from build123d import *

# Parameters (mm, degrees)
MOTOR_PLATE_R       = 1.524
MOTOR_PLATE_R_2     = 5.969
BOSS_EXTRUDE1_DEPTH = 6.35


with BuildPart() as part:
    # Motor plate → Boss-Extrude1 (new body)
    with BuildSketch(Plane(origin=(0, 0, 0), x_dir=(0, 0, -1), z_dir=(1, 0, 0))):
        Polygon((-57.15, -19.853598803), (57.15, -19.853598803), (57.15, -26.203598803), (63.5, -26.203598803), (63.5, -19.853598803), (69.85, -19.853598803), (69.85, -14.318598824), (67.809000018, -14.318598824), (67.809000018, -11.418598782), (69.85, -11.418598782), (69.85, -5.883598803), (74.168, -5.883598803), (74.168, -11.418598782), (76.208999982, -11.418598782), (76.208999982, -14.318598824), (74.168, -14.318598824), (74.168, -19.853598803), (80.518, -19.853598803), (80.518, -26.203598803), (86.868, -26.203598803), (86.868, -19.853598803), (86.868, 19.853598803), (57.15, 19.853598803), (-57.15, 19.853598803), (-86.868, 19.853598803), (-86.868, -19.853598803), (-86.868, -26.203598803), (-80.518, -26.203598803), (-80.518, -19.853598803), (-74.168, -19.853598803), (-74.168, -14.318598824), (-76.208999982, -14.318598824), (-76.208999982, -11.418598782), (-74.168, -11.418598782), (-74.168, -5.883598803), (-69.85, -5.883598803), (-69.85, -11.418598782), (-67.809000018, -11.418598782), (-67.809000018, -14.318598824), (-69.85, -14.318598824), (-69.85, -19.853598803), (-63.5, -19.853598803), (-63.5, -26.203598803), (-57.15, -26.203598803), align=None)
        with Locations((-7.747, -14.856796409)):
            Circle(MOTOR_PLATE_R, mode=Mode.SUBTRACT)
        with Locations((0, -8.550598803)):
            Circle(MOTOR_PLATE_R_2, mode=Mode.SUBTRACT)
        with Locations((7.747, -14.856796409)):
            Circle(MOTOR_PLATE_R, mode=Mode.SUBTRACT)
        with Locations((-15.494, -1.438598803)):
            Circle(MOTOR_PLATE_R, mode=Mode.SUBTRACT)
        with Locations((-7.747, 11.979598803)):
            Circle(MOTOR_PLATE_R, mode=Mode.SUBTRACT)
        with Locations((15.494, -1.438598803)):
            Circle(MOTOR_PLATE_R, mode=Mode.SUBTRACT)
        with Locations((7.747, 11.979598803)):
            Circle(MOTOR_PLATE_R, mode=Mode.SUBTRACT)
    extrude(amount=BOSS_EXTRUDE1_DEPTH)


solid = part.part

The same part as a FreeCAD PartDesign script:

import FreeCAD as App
import Part
import Sketcher
Q = App.Units.Quantity


def add_polygon(sketch, points):
    """Adds a closed chain of lines whose ends are joined by coincident constraints."""
    first, n = sketch.GeometryCount, len(points)
    for a, b in zip(points, points[1:] + points[:1]):
        sketch.addGeometry(Part.LineSegment(App.Vector(*a, 0), App.Vector(*b, 0)), False)
    for i in range(n):
        sketch.addConstraint(Sketcher.Constraint("Coincident", first + i, 2, first + (i + 1) % n, 1))

doc = App.newDocument("Part")
params = doc.addObject("Spreadsheet::Sheet", "Params")
for row, (alias, value) in enumerate([
    ("sketch1_diameter", "0.12 in"),
    ("sketch1_diameter2", "0.47 in"),
    ("sketch1_height", "4.5 in"),
    ("sketch1_width", "0.25 in"),
    ("sketch1_height2", "0.17 in"),
    ("pad1_length", "0.25 in"),
], start=1):
    params.set(f"A{row}", alias)
    params.set(f"B{row}", "=" + value)
    params.setAlias(f"B{row}", alias)

body = doc.addObject("PartDesign::Body", "Body")

# Sketch on YZ plane
sketch1 = body.newObject("Sketcher::SketchObject", "Sketch")
sketch1.AttachmentSupport = (doc.getObject("YZ_Plane"), [""])
sketch1.MapMode = "FlatFace"
add_polygon(sketch1, [(-19.9, 57.1), (-19.9, -57.1), (-26.2, -57.1), (-26.2, -63.5), (-19.9, -63.5), (-19.9, -69.8), (-14.3, -69.8), (-14.3, -67.8), (-11.4, -67.8), (-11.4, -69.8), (-5.9, -69.8), (-5.9, -74.2), (-11.4, -74.2), (-11.4, -76.2), (-14.3, -76.2), (-14.3, -74.2), (-19.9, -74.2), (-19.9, -80.5), (-26.2, -80.5), (-26.2, -86.9), (19.9, -86.9), (19.9, 86.9), (-26.2, 86.9), (-26.2, 80.5), (-19.9, 80.5), (-19.9, 74.2), (-14.3, 74.2), (-14.3, 76.2), (-11.4, 76.2), (-11.4, 74.2), (-5.9, 74.2), (-5.9, 69.8), (-11.4, 69.8), (-11.4, 67.8), (-14.3, 67.8), (-14.3, 69.8), (-19.9, 69.8), (-19.9, 63.5), (-26.2, 63.5), (-26.2, 57.1)])  # lines 0-39
sketch1.addGeometry(Part.Circle(App.Vector(-14.9, 7.7, 0), App.Vector(0, 0, 1), 1.5), False)  # 40
sketch1.addGeometry(Part.Circle(App.Vector(-1.4, 15.5, 0), App.Vector(0, 0, 1), 1.5), False)  # 41
sketch1.addGeometry(Part.Circle(App.Vector(-14.9, -7.7, 0), App.Vector(0, 0, 1), 1.5), False)  # 42
sketch1.addGeometry(Part.Circle(App.Vector(-8.6, 0, 0), App.Vector(0, 0, 1), 6), False)  # 43
sketch1.addGeometry(Part.Circle(App.Vector(-1.4, -15.5, 0), App.Vector(0, 0, 1), 1.5), False)  # 44
sketch1.addGeometry(Part.Circle(App.Vector(12, 7.7, 0), App.Vector(0, 0, 1), 1.5), False)  # 45
sketch1.addGeometry(Part.Circle(App.Vector(12, -7.7, 0), App.Vector(0, 0, 1), 1.5), False)  # 46
sketch1.addConstraint(Sketcher.Constraint("Vertical", 0))
sketch1.addConstraint(Sketcher.Constraint("Horizontal", 1))
sketch1.addConstraint(Sketcher.Constraint("Vertical", 2))
sketch1.addConstraint(Sketcher.Constraint("Horizontal", 3))
sketch1.addConstraint(Sketcher.Constraint("Vertical", 4))
sketch1.addConstraint(Sketcher.Constraint("Horizontal", 5))
sketch1.addConstraint(Sketcher.Constraint("Vertical", 6))
sketch1.addConstraint(Sketcher.Constraint("Horizontal", 7))
sketch1.addConstraint(Sketcher.Constraint("Vertical", 8))
sketch1.addConstraint(Sketcher.Constraint("Horizontal", 9))
sketch1.addConstraint(Sketcher.Constraint("Vertical", 10))
sketch1.addConstraint(Sketcher.Constraint("Horizontal", 11))
sketch1.addConstraint(Sketcher.Constraint("Vertical", 12))
sketch1.addConstraint(Sketcher.Constraint("Horizontal", 13))
sketch1.addConstraint(Sketcher.Constraint("Vertical", 14))
sketch1.addConstraint(Sketcher.Constraint("Horizontal", 15))
sketch1.addConstraint(Sketcher.Constraint("Vertical", 16))
sketch1.addConstraint(Sketcher.Constraint("Horizontal", 17))
sketch1.addConstraint(Sketcher.Constraint("Vertical", 18))
sketch1.addConstraint(Sketcher.Constraint("Horizontal", 19))
sketch1.addConstraint(Sketcher.Constraint("Vertical", 20))
sketch1.addConstraint(Sketcher.Constraint("Horizontal", 21))
sketch1.addConstraint(Sketcher.Constraint("Vertical", 22))
sketch1.addConstraint(Sketcher.Constraint("Horizontal", 23))
sketch1.addConstraint(Sketcher.Constraint("Vertical", 24))
sketch1.addConstraint(Sketcher.Constraint("Horizontal", 25))
sketch1.addConstraint(Sketcher.Constraint("Vertical", 26))
sketch1.addConstraint(Sketcher.Constraint("Horizontal", 27))
sketch1.addConstraint(Sketcher.Constraint("Vertical", 28))
sketch1.addConstraint(Sketcher.Constraint("Horizontal", 29))
sketch1.addConstraint(Sketcher.Constraint("Vertical", 30))
sketch1.addConstraint(Sketcher.Constraint("Horizontal", 31))
sketch1.addConstraint(Sketcher.Constraint("Vertical", 32))
sketch1.addConstraint(Sketcher.Constraint("Horizontal", 33))
sketch1.addConstraint(Sketcher.Constraint("Vertical", 34))
sketch1.addConstraint(Sketcher.Constraint("Horizontal", 35))
sketch1.addConstraint(Sketcher.Constraint("Vertical", 36))
sketch1.addConstraint(Sketcher.Constraint("Horizontal", 37))
sketch1.addConstraint(Sketcher.Constraint("Vertical", 38))
sketch1.addConstraint(Sketcher.Constraint("Horizontal", 39))
sketch1.addConstraint(Sketcher.Constraint("Equal", 40, 41))
sketch1.addConstraint(Sketcher.Constraint("Equal", 41, 42))
sketch1.addConstraint(Sketcher.Constraint("Equal", 42, 44))
sketch1.addConstraint(Sketcher.Constraint("Equal", 44, 45))
sketch1.addConstraint(Sketcher.Constraint("Equal", 45, 46))
sketch1.addConstraint(Sketcher.Constraint("Symmetric", 40, 3, 42, 3, -1))
sketch1.addConstraint(Sketcher.Constraint("Symmetric", 41, 3, 44, 3, -1))
sketch1.addConstraint(Sketcher.Constraint("Symmetric", 45, 3, 46, 3, -1))
sketch1.addConstraint(Sketcher.Constraint("Symmetric", 18, 2, 21, 2, -1))
sketch1.addConstraint(Sketcher.Constraint("Symmetric", 16, 2, 23, 2, -1))
sketch1.addConstraint(Sketcher.Constraint("Symmetric", 14, 2, 25, 2, -1))
sketch1.addConstraint(Sketcher.Constraint("Symmetric", 12, 2, 27, 2, -1))
sketch1.addConstraint(Sketcher.Constraint("Symmetric", 10, 2, 29, 2, -1))
sketch1.addConstraint(Sketcher.Constraint("Symmetric", 8, 2, 31, 2, -1))
sketch1.addConstraint(Sketcher.Constraint("Symmetric", 6, 2, 33, 2, -1))
sketch1.addConstraint(Sketcher.Constraint("Symmetric", 4, 2, 35, 2, -1))
sketch1.addConstraint(Sketcher.Constraint("Symmetric", 2, 2, 37, 2, -1))
sketch1.addConstraint(Sketcher.Constraint("PointOnObject", 43, 3, -1))
sketch1.addConstraint(Sketcher.Constraint("Horizontal", 40, 3, 45, 3))
sketch1.addConstraint(Sketcher.Constraint("Horizontal", 5, 2, 8, 2))
sketch1.addConstraint(Sketcher.Constraint("Horizontal", 11, 2, 14, 2))
sketch1.addConstraint(Sketcher.Constraint("Vertical", 0, 2, 3, 2))
sketch1.addConstraint(Sketcher.Constraint("Vertical", 8, 2, 11, 2))
sketch1.addConstraint(Sketcher.Constraint("Vertical", 6, 2, 13, 2))
sketch1.addConstraint(Sketcher.Constraint("Vertical", 4, 2, 15, 2))
sketch1.addConstraint(Sketcher.Constraint("Vertical", 2, 2, 17, 2))
sketch1.addConstraint(Sketcher.Constraint("Equal", 5, 9))
sketch1.addConstraint(Sketcher.Constraint("Equal", 39, 2))
sketch1.addConstraint(Sketcher.Constraint("Equal", 2, 4))
sketch1.addConstraint(Sketcher.Constraint("Equal", 8, 12))
sketch1.addConstraint(Sketcher.Constraint("Equal", 4, 16))
sketch1.addConstraint(Sketcher.Constraint("Equal", 16, 18))
sketch1.addConstraint(Sketcher.Constraint("Equal", 36, 38))
sketch1.addConstraint(Sketcher.Constraint("Diameter", 40, Q("0.12 in")))
sketch1.addConstraint(Sketcher.Constraint("Diameter", 43, Q("0.47 in")))
sketch1.addConstraint(Sketcher.Constraint("DistanceY", 0, 2, 0, 1, Q("4.5 in")))
sketch1.addConstraint(Sketcher.Constraint("DistanceX", 1, 2, 1, 1, Q("0.25 in")))
sketch1.addConstraint(Sketcher.Constraint("DistanceY", 10, 2, 10, 1, Q("0.17 in")))
sketch1.addConstraint(Sketcher.Constraint("DistanceY", -1, 1, 41, 3, Q("0.61 in")))
sketch1.addConstraint(Sketcher.Constraint("DistanceY", 42, 3, 40, 3, Q("0.61 in")))
sketch1.addConstraint(Sketcher.Constraint("DistanceX", 43, 3, 41, 3, Q("0.28 in")))
sketch1.addConstraint(Sketcher.Constraint("DistanceX", 4, 2, 9, 2, Q("0.55 in")))
sketch1.addConstraint(Sketcher.Constraint("DistanceX", 45, 3, 20, 2, Q("0.31 in")))
sketch1.addConstraint(Sketcher.Constraint("DistanceX", 0, 2, 44, 3, Q("0.725 in")))
sketch1.addConstraint(Sketcher.Constraint("DistanceX", 5, 1, 5, 2, Q("5.535 mm")))
sketch1.addConstraint(Sketcher.Constraint("DistanceY", 6, 1, 6, 2, Q("2.041 mm")))
sketch1.addConstraint(Sketcher.Constraint("DistanceX", 41, 3, -1, 1, Q("1.438599 mm")))
sketch1.addConstraint(Sketcher.Constraint("DistanceX", -1, 1, 45, 3, Q("11.979599 mm")))
sketch1.addConstraint(Sketcher.Constraint("DistanceX", 40, 3, -1, 1, Q("14.856796 mm")))
sketch1.setExpression("Constraints[113]", "Params.sketch1_diameter")
sketch1.setExpression("Constraints[114]", "Params.sketch1_diameter2")
sketch1.setExpression("Constraints[115]", "Params.sketch1_height")
sketch1.setExpression("Constraints[116]", "Params.sketch1_width")
sketch1.setExpression("Constraints[117]", "Params.sketch1_height2")
pad1 = body.newObject("PartDesign::Pad", "Pad")
pad1.Profile = sketch1
pad1.setExpression("Length", "Params.pad1_length")

doc.recompute()
